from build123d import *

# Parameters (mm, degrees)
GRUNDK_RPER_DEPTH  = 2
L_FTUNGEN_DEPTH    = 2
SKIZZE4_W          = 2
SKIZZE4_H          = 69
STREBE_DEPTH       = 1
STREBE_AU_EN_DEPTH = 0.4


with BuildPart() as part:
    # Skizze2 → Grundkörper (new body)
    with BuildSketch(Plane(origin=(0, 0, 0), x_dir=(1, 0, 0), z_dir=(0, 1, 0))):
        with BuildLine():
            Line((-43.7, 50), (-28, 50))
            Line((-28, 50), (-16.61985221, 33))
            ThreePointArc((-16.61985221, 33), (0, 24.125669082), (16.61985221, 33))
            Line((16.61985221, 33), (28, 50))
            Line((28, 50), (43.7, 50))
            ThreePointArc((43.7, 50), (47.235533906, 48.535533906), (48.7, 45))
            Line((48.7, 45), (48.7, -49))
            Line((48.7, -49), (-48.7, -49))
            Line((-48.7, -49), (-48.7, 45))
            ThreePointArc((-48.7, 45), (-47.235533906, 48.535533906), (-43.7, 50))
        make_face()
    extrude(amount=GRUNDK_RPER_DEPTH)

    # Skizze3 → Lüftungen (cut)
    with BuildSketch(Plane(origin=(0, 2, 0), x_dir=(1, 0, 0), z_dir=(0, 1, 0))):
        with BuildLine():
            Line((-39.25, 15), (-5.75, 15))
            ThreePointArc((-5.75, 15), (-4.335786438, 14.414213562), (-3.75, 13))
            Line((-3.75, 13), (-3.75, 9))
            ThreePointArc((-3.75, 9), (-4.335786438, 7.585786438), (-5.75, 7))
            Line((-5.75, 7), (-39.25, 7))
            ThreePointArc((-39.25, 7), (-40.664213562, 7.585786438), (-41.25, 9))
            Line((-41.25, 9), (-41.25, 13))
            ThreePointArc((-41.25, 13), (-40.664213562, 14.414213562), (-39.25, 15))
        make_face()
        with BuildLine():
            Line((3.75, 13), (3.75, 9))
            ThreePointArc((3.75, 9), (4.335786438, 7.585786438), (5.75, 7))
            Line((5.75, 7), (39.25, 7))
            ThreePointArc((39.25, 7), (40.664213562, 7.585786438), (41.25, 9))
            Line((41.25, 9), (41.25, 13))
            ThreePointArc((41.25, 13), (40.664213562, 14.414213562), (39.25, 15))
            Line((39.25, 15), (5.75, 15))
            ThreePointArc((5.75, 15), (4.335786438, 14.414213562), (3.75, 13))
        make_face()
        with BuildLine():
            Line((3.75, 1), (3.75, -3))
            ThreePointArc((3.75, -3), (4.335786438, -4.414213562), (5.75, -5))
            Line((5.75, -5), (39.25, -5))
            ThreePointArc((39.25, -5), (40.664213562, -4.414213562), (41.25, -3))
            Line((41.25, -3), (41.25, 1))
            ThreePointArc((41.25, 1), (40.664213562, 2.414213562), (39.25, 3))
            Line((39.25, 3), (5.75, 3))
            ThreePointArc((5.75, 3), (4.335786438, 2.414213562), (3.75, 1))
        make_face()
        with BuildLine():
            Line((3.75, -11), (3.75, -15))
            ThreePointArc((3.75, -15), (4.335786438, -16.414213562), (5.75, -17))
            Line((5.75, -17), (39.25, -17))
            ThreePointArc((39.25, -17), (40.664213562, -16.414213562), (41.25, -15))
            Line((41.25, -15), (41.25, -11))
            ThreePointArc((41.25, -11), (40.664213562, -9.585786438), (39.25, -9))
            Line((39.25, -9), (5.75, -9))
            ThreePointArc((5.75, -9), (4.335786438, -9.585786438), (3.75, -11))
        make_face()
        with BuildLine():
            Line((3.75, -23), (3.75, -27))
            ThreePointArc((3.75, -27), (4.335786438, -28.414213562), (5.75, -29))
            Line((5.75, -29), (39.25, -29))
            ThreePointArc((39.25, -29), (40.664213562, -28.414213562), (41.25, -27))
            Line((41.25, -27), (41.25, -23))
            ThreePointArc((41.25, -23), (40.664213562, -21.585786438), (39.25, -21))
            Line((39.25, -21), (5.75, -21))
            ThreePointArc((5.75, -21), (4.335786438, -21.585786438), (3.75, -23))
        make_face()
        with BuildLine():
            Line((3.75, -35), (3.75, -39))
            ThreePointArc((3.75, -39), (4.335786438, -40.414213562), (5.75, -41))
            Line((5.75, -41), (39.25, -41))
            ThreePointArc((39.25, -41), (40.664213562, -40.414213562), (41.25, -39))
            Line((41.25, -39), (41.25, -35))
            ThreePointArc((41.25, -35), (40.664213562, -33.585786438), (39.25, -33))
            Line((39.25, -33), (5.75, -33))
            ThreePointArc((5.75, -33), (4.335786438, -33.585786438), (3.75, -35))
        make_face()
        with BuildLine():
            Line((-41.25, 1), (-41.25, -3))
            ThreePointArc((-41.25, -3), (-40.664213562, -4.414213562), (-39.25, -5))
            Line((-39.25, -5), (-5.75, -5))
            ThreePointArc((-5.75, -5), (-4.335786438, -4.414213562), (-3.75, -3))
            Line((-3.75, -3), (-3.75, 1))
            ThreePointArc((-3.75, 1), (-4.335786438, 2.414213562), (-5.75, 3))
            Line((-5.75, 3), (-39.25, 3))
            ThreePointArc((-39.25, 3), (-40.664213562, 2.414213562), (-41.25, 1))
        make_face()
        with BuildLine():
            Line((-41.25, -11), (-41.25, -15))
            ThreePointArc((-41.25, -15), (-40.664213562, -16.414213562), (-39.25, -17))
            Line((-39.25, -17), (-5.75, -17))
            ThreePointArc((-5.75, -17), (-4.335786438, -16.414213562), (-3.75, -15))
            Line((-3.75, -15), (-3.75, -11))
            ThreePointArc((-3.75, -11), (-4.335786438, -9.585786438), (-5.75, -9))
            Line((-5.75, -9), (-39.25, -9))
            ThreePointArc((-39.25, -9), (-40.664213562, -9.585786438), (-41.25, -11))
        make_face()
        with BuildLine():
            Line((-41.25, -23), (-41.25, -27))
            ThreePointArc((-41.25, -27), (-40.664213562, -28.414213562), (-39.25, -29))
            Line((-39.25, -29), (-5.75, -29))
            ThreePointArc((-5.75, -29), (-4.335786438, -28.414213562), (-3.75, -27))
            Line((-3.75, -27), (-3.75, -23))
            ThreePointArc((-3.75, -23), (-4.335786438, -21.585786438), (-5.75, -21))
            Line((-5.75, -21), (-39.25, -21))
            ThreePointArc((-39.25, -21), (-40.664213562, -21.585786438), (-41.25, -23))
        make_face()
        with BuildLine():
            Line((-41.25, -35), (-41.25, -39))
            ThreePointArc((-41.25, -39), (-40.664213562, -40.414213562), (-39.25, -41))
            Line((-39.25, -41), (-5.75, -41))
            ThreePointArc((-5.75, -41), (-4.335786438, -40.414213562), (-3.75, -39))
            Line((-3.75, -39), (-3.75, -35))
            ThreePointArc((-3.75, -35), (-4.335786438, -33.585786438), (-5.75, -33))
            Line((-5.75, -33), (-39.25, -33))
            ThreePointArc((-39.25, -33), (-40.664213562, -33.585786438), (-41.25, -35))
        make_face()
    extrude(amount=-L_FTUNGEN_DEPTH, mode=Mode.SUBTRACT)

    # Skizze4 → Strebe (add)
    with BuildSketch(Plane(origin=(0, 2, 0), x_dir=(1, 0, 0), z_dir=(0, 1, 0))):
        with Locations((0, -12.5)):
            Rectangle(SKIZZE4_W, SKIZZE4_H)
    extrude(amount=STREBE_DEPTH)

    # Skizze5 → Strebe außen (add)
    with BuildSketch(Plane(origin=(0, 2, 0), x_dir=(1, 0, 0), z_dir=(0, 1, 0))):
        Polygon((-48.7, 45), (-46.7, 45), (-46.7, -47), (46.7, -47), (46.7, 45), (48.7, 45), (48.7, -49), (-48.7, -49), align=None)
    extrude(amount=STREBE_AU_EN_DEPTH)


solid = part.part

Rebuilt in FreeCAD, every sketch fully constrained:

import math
import FreeCAD as App
import Part
import Sketcher
from FreeCAD import Vector
Q = App.Units.Quantity


def add_polygon(sketch, points):
    """Adds a closed chain of lines whose ends are joined by coincident constraints."""
    first, n = sketch.GeometryCount, len(points)
    for a, b in zip(points, points[1:] + points[:1]):
        sketch.addGeometry(Part.LineSegment(App.Vector(*a, 0), App.Vector(*b, 0)), False)
    for i in range(n):
        sketch.addConstraint(Sketcher.Constraint("Coincident", first + i, 2, first + (i + 1) % n, 1))

doc = App.newDocument("Part")
params = doc.addObject("Spreadsheet::Sheet", "Params")
for row, (alias, value) in enumerate([
    ("sketch1_radius", "5 mm"),
    ("sketch1_radius2", "20 mm"),
    ("sketch1_height", "94 mm"),
    ("sketch1_width", "15.7 mm"),
    ("sketch1_width2", "97.4 mm"),
    ("pad1_length", "2 mm"),
    ("sketch2_radius", "2 mm"),
    ("sketch2_height", "4 mm"),
    ("sketch2_width", "33.5 mm"),
    ("pocket1_length", "2 mm"),
    ("sketch3_width", "2 mm"),
    ("sketch3_height", "69 mm"),
    ("pad2_length", "1 mm"),
    ("sketch4_width", "2 mm"),
    ("sketch4_height", "94 mm"),
    ("sketch4_height2", "92 mm"),
    ("sketch4_width2", "97.4 mm"),
    ("pad3_length", "0.4 mm"),
], start=1):
    params.set(f"A{row}", alias)
    params.set(f"B{row}", "=" + value)
    params.setAlias(f"B{row}", alias)

body = doc.addObject("PartDesign::Body", "Body")

sketch1 = body.newObject("Sketcher::SketchObject", "Sketch")
sketch1.AttachmentSupport = (doc.getObject("XZ_Plane"), [""])
sketch1.MapMode = "FlatFace"
sketch1.addGeometry([
    Part.LineSegment(Vector(-28, -50, 0), Vector(-44, -50, 0)),
    Part.ArcOfCircle(Part.Circle(Vector(-44, -45, 0), Vector(0, 0, 1), 5), math.radians(180), math.radians(270)),
    Part.LineSegment(Vector(-49, -45, 0), Vector(-49, 49, 0)),
    Part.LineSegment(Vector(-49, 49, 0), Vector(49, 49, 0)),
    Part.LineSegment(Vector(49, 49, 0), Vector(49, -45, 0)),
    Part.ArcOfCircle(Part.Circle(Vector(44, -45, 0), Vector(0, 0, 1), 5), math.radians(-90), math.radians(0)),
    Part.LineSegment(Vector(44, -50, 0), Vector(28, -50, 0)),
    Part.LineSegment(Vector(28, -50, 0), Vector(17, -33, 0)),
    Part.ArcOfCircle(Part.Circle(Vector(0, -44, 0), Vector(0, 0, 1), 20), math.radians(34), math.radians(146)),
    Part.LineSegment(Vector(-17, -33, 0), Vector(-28, -50, 0)),
], False)
sketch1.addConstraint([
    Sketcher.Constraint("Tangent", 0, 2, 1, 2),
    Sketcher.Constraint("Tangent", 1, 1, 2, 1),
    Sketcher.Constraint("Coincident", 2, 2, 3, 1),
    Sketcher.Constraint("Coincident", 3, 2, 4, 1),
    Sketcher.Constraint("Tangent", 4, 2, 5, 2),
    Sketcher.Constraint("Tangent", 5, 1, 6, 1),
    Sketcher.Constraint("Coincident", 6, 2, 7, 1),
    Sketcher.Constraint("Tangent", 7, 2, 8, 1),
    Sketcher.Constraint("Tangent", 8, 2, 9, 1),
    Sketcher.Constraint("Coincident", 9, 2, 0, 1),
    Sketcher.Constraint("Horizontal", 0),
    Sketcher.Constraint("Vertical", 2),
    Sketcher.Constraint("Horizontal", 3),
    Sketcher.Constraint("Vertical", 4),
    Sketcher.Constraint("Horizontal", 6),
    Sketcher.Constraint("Equal", 1, 5),
    Sketcher.Constraint("Symmetric", 1, 3, 5, 3, -2),
    Sketcher.Constraint("Symmetric", 7, 2, 8, 2, -2),
    Sketcher.Constraint("Radius", 1, Q("5 mm")),
    Sketcher.Constraint("Radius", 8, Q("20 mm")),
    Sketcher.Constraint("DistanceY", 2, 1, 2, 2, Q("94 mm")),
    Sketcher.Constraint("DistanceX", 0, 2, 0, 1, Q("15.7 mm")),
    Sketcher.Constraint("DistanceX", 3, 1, 3, 2, Q("97.4 mm")),
    Sketcher.Constraint("DistanceY", 1, 3, -1, 1, Q("45 mm")),
    Sketcher.Constraint("DistanceY", 7, 2, -1, 1, Q("33 mm")),
])
sketch1.setExpression("Constraints[18]", "Params.sketch1_radius")
sketch1.setExpression("Constraints[19]", "Params.sketch1_radius2")
sketch1.setExpression("Constraints[20]", "Params.sketch1_height")
sketch1.setExpression("Constraints[21]", "Params.sketch1_width")
sketch1.setExpression("Constraints[22]", "Params.sketch1_width2")
pad1 = body.newObject("PartDesign::Pad", "Pad")
pad1.Profile = sketch1
pad1.setExpression("Length", "Params.pad1_length")
pad1.Reversed = True

sketch2 = body.newObject("Sketcher::SketchObject", "Sketch001")
sketch2.AttachmentSupport = (doc.getObject("XZ_Plane"), [""])
sketch2.MapMode = "FlatFace"
sketch2.AttachmentOffset = App.Placement(Vector(0, 0, -2), App.Rotation())
sketch2.addGeometry([
    Part.LineSegment(Vector(-5.8, -15, 0), Vector(-39.2, -15, 0)),
    Part.ArcOfCircle(Part.Circle(Vector(-39.2, -13, 0), Vector(0, 0, 1), 2), math.radians(-180), math.radians(-90)),
    Part.LineSegment(Vector(-41.2, -13, 0), Vector(-41.2, -9, 0)),
    Part.ArcOfCircle(Part.Circle(Vector(-39.2, -9, 0), Vector(0, 0, 1), 2), math.radians(90), math.radians(180)),
    Part.LineSegment(Vector(-39.2, -7, 0), Vector(-5.8, -7, 0)),
    Part.ArcOfCircle(Part.Circle(Vector(-5.8, -9, 0), Vector(0, 0, 1), 2), math.radians(0), math.radians(90)),
    Part.LineSegment(Vector(-3.8, -9, 0), Vector(-3.8, -13, 0)),
    Part.ArcOfCircle(Part.Circle(Vector(-5.8, -13, 0), Vector(0, 0, 1), 2), math.radians(-90), math.radians(0)),
    Part.LineSegment(Vector(3.8, -13, 0), Vector(3.8, -9, 0)),
    Part.ArcOfCircle(Part.Circle(Vector(5.8, -9, 0), Vector(0, 0, 1), 2), math.radians(90), math.radians(180)),
    Part.LineSegment(Vector(5.8, -7, 0), Vector(39.2, -7, 0)),
    Part.ArcOfCircle(Part.Circle(Vector(39.2, -9, 0), Vector(0, 0, 1), 2), math.radians(0), math.radians(90)),
    Part.LineSegment(Vector(41.2, -9, 0), Vector(41.2, -13, 0)),
    Part.ArcOfCircle(Part.Circle(Vector(39.2, -13, 0), Vector(0, 0, 1), 2), math.radians(-90), math.radians(0)),
    Part.LineSegment(Vector(39.2, -15, 0), Vector(5.8, -15, 0)),
    Part.ArcOfCircle(Part.Circle(Vector(5.8, -13, 0), Vector(0, 0, 1), 2), math.radians(-180), math.radians(-90)),
    Part.LineSegment(Vector(3.8, -1, 0), Vector(3.8, 3, 0)),
    Part.ArcOfCircle(Part.Circle(Vector(5.8, 3, 0), Vector(0, 0, 1), 2), math.radians(90), math.radians(180)),
    Part.LineSegment(Vector(5.8, 5, 0), Vector(39.2, 5, 0)),
    Part.ArcOfCircle(Part.Circle(Vector(39.2, 3, 0), Vector(0, 0, 1), 2), math.radians(0), math.radians(90)),
    Part.LineSegment(Vector(41.2, 3, 0), Vector(41.2, -1, 0)),
    Part.ArcOfCircle(Part.Circle(Vector(39.2, -1, 0), Vector(0, 0, 1), 2), math.radians(-90), math.radians(0)),
    Part.LineSegment(Vector(39.2, -3, 0), Vector(5.8, -3, 0)),
    Part.ArcOfCircle(Part.Circle(Vector(5.8, -1, 0), Vector(0, 0, 1), 2), math.radians(-180), math.radians(-90)),
    Part.LineSegment(Vector(3.8, 11, 0), Vector(3.8, 15, 0)),
    Part.ArcOfCircle(Part.Circle(Vector(5.8, 15, 0), Vector(0, 0, 1), 2), math.radians(90), math.radians(180)),
    Part.LineSegment(Vector(5.8, 17, 0), Vector(39.2, 17, 0)),
    Part.ArcOfCircle(Part.Circle(Vector(39.2, 15, 0), Vector(0, 0, 1), 2), math.radians(0), math.radians(90)),
    Part.LineSegment(Vector(41.2, 15, 0), Vector(41.2, 11, 0)),
    Part.ArcOfCircle(Part.Circle(Vector(39.2, 11, 0), Vector(0, 0, 1), 2), math.radians(-90), math.radians(0)),
    Part.LineSegment(Vector(39.2, 9, 0), Vector(5.8, 9, 0)),
    Part.ArcOfCircle(Part.Circle(Vector(5.8, 11, 0), Vector(0, 0, 1), 2), math.radians(-180), math.radians(-90)),
    Part.LineSegment(Vector(3.8, 23, 0), Vector(3.8, 27, 0)),
    Part.ArcOfCircle(Part.Circle(Vector(5.8, 27, 0), Vector(0, 0, 1), 2), math.radians(90), math.radians(180)),
    Part.LineSegment(Vector(5.8, 29, 0), Vector(39.2, 29, 0)),
    Part.ArcOfCircle(Part.Circle(Vector(39.2, 27, 0), Vector(0, 0, 1), 2), math.radians(0), math.radians(90)),
    Part.LineSegment(Vector(41.2, 27, 0), Vector(41.2, 23, 0)),
    Part.ArcOfCircle(Part.Circle(Vector(39.2, 23, 0), Vector(0, 0, 1), 2), math.radians(-90), math.radians(0)),
    Part.LineSegment(Vector(39.2, 21, 0), Vector(5.8, 21, 0)),
    Part.ArcOfCircle(Part.Circle(Vector(5.8, 23, 0), Vector(0, 0, 1), 2), math.radians(-180), math.radians(-90)),
    Part.LineSegment(Vector(3.8, 35, 0), Vector(3.8, 39, 0)),
    Part.ArcOfCircle(Part.Circle(Vector(5.8, 39, 0), Vector(0, 0, 1), 2), math.radians(90), math.radians(180)),
    Part.LineSegment(Vector(5.8, 41, 0), Vector(39.2, 41, 0)),
    Part.ArcOfCircle(Part.Circle(Vector(39.2, 39, 0), Vector(0, 0, 1), 2), math.radians(0), math.radians(90)),
    Part.LineSegment(Vector(41.2, 39, 0), Vector(41.2, 35, 0)),
    Part.ArcOfCircle(Part.Circle(Vector(39.2, 35, 0), Vector(0, 0, 1), 2), math.radians(-90), math.radians(0)),
    Part.LineSegment(Vector(39.2, 33, 0), Vector(5.8, 33, 0)),
    Part.ArcOfCircle(Part.Circle(Vector(5.8, 35, 0), Vector(0, 0, 1), 2), math.radians(-180), math.radians(-90)),
    Part.LineSegment(Vector(-41.2, -1, 0), Vector(-41.2, 3, 0)),
    Part.ArcOfCircle(Part.Circle(Vector(-39.2, 3, 0), Vector(0, 0, 1), 2), math.radians(90), math.radians(180)),
    Part.LineSegment(Vector(-39.2, 5, 0), Vector(-5.8, 5, 0)),
    Part.ArcOfCircle(Part.Circle(Vector(-5.8, 3, 0), Vector(0, 0, 1), 2), math.radians(0), math.radians(90)),
    Part.LineSegment(Vector(-3.8, 3, 0), Vector(-3.8, -1, 0)),
    Part.ArcOfCircle(Part.Circle(Vector(-5.8, -1, 0), Vector(0, 0, 1), 2), math.radians(-90), math.radians(0)),
    Part.LineSegment(Vector(-5.8, -3, 0), Vector(-39.2, -3, 0)),
    Part.ArcOfCircle(Part.Circle(Vector(-39.2, -1, 0), Vector(0, 0, 1), 2), math.radians(-180), math.radians(-90)),
    Part.LineSegment(Vector(-41.2, 11, 0), Vector(-41.2, 15, 0)),
    Part.ArcOfCircle(Part.Circle(Vector(-39.2, 15, 0), Vector(0, 0, 1), 2), math.radians(90), math.radians(180)),
    Part.LineSegment(Vector(-39.2, 17, 0), Vector(-5.8, 17, 0)),
    Part.ArcOfCircle(Part.Circle(Vector(-5.8, 15, 0), Vector(0, 0, 1), 2), math.radians(0), math.radians(90)),
    Part.LineSegment(Vector(-3.8, 15, 0), Vector(-3.8, 11, 0)),
    Part.ArcOfCircle(Part.Circle(Vector(-5.8, 11, 0), Vector(0, 0, 1), 2), math.radians(-90), math.radians(0)),
    Part.LineSegment(Vector(-5.8, 9, 0), Vector(-39.2, 9, 0)),
    Part.ArcOfCircle(Part.Circle(Vector(-39.2, 11, 0), Vector(0, 0, 1), 2), math.radians(-180), math.radians(-90)),
    Part.LineSegment(Vector(-41.2, 23, 0), Vector(-41.2, 27, 0)),
    Part.ArcOfCircle(Part.Circle(Vector(-39.2, 27, 0), Vector(0, 0, 1), 2), math.radians(90), math.radians(180)),
    Part.LineSegment(Vector(-39.2, 29, 0), Vector(-5.8, 29, 0)),
    Part.ArcOfCircle(Part.Circle(Vector(-5.8, 27, 0), Vector(0, 0, 1), 2), math.radians(0), math.radians(90)),
    Part.LineSegment(Vector(-3.8, 27, 0), Vector(-3.8, 23, 0)),
    Part.ArcOfCircle(Part.Circle(Vector(-5.8, 23, 0), Vector(0, 0, 1), 2), math.radians(-90), math.radians(0)),
    Part.LineSegment(Vector(-5.8, 21, 0), Vector(-39.2, 21, 0)),
    Part.ArcOfCircle(Part.Circle(Vector(-39.2, 23, 0), Vector(0, 0, 1), 2), math.radians(-180), math.radians(-90)),
    Part.LineSegment(Vector(-41.2, 35, 0), Vector(-41.2, 39, 0)),
    Part.ArcOfCircle(Part.Circle(Vector(-39.2, 39, 0), Vector(0, 0, 1), 2), math.radians(90), math.radians(180)),
    Part.LineSegment(Vector(-39.2, 41, 0), Vector(-5.8, 41, 0)),
    Part.ArcOfCircle(Part.Circle(Vector(-5.8, 39, 0), Vector(0, 0, 1), 2), math.radians(0), math.radians(90)),
    Part.LineSegment(Vector(-3.8, 39, 0), Vector(-3.8, 35, 0)),
    Part.ArcOfCircle(Part.Circle(Vector(-5.8, 35, 0), Vector(0, 0, 1), 2), math.radians(-90), math.radians(0)),
    Part.LineSegment(Vector(-5.8, 33, 0), Vector(-39.2, 33, 0)),
    Part.ArcOfCircle(Part.Circle(Vector(-39.2, 35, 0), Vector(0, 0, 1), 2), math.radians(-180), math.radians(-90)),
], False)
sketch2.addConstraint([
    Sketcher.Constraint("Tangent", 0, 2, 1, 2),
    Sketcher.Constraint("Tangent", 1, 1, 2, 1),
    Sketcher.Constraint("Tangent", 2, 2, 3, 2),
    Sketcher.Constraint("Tangent", 3, 1, 4, 1),
    Sketcher.Constraint("Tangent", 4, 2, 5, 2),
    Sketcher.Constraint("Tangent", 5, 1, 6, 1),
    Sketcher.Constraint("Tangent", 6, 2, 7, 2),
    Sketcher.Constraint("Tangent", 7, 1, 0, 1),
    Sketcher.Constraint("Tangent", 8, 2, 9, 2),
    Sketcher.Constraint("Tangent", 9, 1, 10, 1),
    Sketcher.Constraint("Tangent", 10, 2, 11, 2),
    Sketcher.Constraint("Tangent", 11, 1, 12, 1),
    Sketcher.Constraint("Tangent", 12, 2, 13, 2),
    Sketcher.Constraint("Tangent", 13, 1, 14, 1),
    Sketcher.Constraint("Tangent", 14, 2, 15, 2),
    Sketcher.Constraint("Tangent", 15, 1, 8, 1),
    Sketcher.Constraint("Tangent", 16, 2, 17, 2),
    Sketcher.Constraint("Tangent", 17, 1, 18, 1),
    Sketcher.Constraint("Tangent", 18, 2, 19, 2),
    Sketcher.Constraint("Tangent", 19, 1, 20, 1),
    Sketcher.Constraint("Tangent", 20, 2, 21, 2),
    Sketcher.Constraint("Tangent", 21, 1, 22, 1),
    Sketcher.Constraint("Tangent", 22, 2, 23, 2),
    Sketcher.Constraint("Tangent", 23, 1, 16, 1),
    Sketcher.Constraint("Tangent", 24, 2, 25, 2),
    Sketcher.Constraint("Tangent", 25, 1, 26, 1),
    Sketcher.Constraint("Tangent", 26, 2, 27, 2),
    Sketcher.Constraint("Tangent", 27, 1, 28, 1),
    Sketcher.Constraint("Tangent", 28, 2, 29, 2),
    Sketcher.Constraint("Tangent", 29, 1, 30, 1),
    Sketcher.Constraint("Tangent", 30, 2, 31, 2),
    Sketcher.Constraint("Tangent", 31, 1, 24, 1),
    Sketcher.Constraint("Tangent", 32, 2, 33, 2),
    Sketcher.Constraint("Tangent", 33, 1, 34, 1),
    Sketcher.Constraint("Tangent", 34, 2, 35, 2),
    Sketcher.Constraint("Tangent", 35, 1, 36, 1),
    Sketcher.Constraint("Tangent", 36, 2, 37, 2),
    Sketcher.Constraint("Tangent", 37, 1, 38, 1),
    Sketcher.Constraint("Tangent", 38, 2, 39, 2),
    Sketcher.Constraint("Tangent", 39, 1, 32, 1),
    Sketcher.Constraint("Tangent", 40, 2, 41, 2),
    Sketcher.Constraint("Tangent", 41, 1, 42, 1),
    Sketcher.Constraint("Tangent", 42, 2, 43, 2),
    Sketcher.Constraint("Tangent", 43, 1, 44, 1),
    Sketcher.Constraint("Tangent", 44, 2, 45, 2),
    Sketcher.Constraint("Tangent", 45, 1, 46, 1),
    Sketcher.Constraint("Tangent", 46, 2, 47, 2),
    Sketcher.Constraint("Tangent", 47, 1, 40, 1),
    Sketcher.Constraint("Tangent", 48, 2, 49, 2),
    Sketcher.Constraint("Tangent", 49, 1, 50, 1),
    Sketcher.Constraint("Tangent", 50, 2, 51, 2),
    Sketcher.Constraint("Tangent", 51, 1, 52, 1),
    Sketcher.Constraint("Tangent", 52, 2, 53, 2),
    Sketcher.Constraint("Tangent", 53, 1, 54, 1),
    Sketcher.Constraint("Tangent", 54, 2, 55, 2),
    Sketcher.Constraint("Tangent", 55, 1, 48, 1),
    Sketcher.Constraint("Tangent", 56, 2, 57, 2),
    Sketcher.Constraint("Tangent", 57, 1, 58, 1),
    Sketcher.Constraint("Tangent", 58, 2, 59, 2),
    Sketcher.Constraint("Tangent", 59, 1, 60, 1),
    Sketcher.Constraint("Tangent", 60, 2, 61, 2),
    Sketcher.Constraint("Tangent", 61, 1, 62, 1),
    Sketcher.Constraint("Tangent", 62, 2, 63, 2),
    Sketcher.Constraint("Tangent", 63, 1, 56, 1),
    Sketcher.Constraint("Tangent", 64, 2, 65, 2),
    Sketcher.Constraint("Tangent", 65, 1, 66, 1),
    Sketcher.Constraint("Tangent", 66, 2, 67, 2),
    Sketcher.Constraint("Tangent", 67, 1, 68, 1),
    Sketcher.Constraint("Tangent", 68, 2, 69, 2),
    Sketcher.Constraint("Tangent", 69, 1, 70, 1),
    Sketcher.Constraint("Tangent", 70, 2, 71, 2),
    Sketcher.Constraint("Tangent", 71, 1, 64, 1),
    Sketcher.Constraint("Tangent", 72, 2, 73, 2),
    Sketcher.Constraint("Tangent", 73, 1, 74, 1),
    Sketcher.Constraint("Tangent", 74, 2, 75, 2),
    Sketcher.Constraint("Tangent", 75, 1, 76, 1),
    Sketcher.Constraint("Tangent", 76, 2, 77, 2),
    Sketcher.Constraint("Tangent", 77, 1, 78, 1),
    Sketcher.Constraint("Tangent", 78, 2, 79, 2),
    Sketcher.Constraint("Tangent", 79, 1, 72, 1),
    Sketcher.Constraint("Horizontal", 0),
    Sketcher.Constraint("Vertical", 2),
    Sketcher.Constraint("Horizontal", 4),
    Sketcher.Constraint("Vertical", 6),
    Sketcher.Constraint("Vertical", 8),
    Sketcher.Constraint("Horizontal", 10),
    Sketcher.Constraint("Vertical", 12),
    Sketcher.Constraint("Horizontal", 14),
    Sketcher.Constraint("Vertical", 16),
    Sketcher.Constraint("Horizontal", 18),
    Sketcher.Constraint("Vertical", 20),
    Sketcher.Constraint("Horizontal", 22),
    Sketcher.Constraint("Vertical", 24),
    Sketcher.Constraint("Horizontal", 26),
    Sketcher.Constraint("Vertical", 28),
    Sketcher.Constraint("Horizontal", 30),
    Sketcher.Constraint("Vertical", 32),
    Sketcher.Constraint("Horizontal", 34),
    Sketcher.Constraint("Vertical", 36),
    Sketcher.Constraint("Horizontal", 38),
    Sketcher.Constraint("Vertical", 40),
    Sketcher.Constraint("Horizontal", 42),
    Sketcher.Constraint("Vertical", 44),
    Sketcher.Constraint("Horizontal", 46),
    Sketcher.Constraint("Vertical", 48),
    Sketcher.Constraint("Horizontal", 50),
    Sketcher.Constraint("Vertical", 52),
    Sketcher.Constraint("Horizontal", 54),
    Sketcher.Constraint("Vertical", 56),
    Sketcher.Constraint("Horizontal", 58),
    Sketcher.Constraint("Vertical", 60),
    Sketcher.Constraint("Horizontal", 62),
    Sketcher.Constraint("Vertical", 64),
    Sketcher.Constraint("Horizontal", 66),
    Sketcher.Constraint("Vertical", 68),
    Sketcher.Constraint("Horizontal", 70),
    Sketcher.Constraint("Vertical", 72),
    Sketcher.Constraint("Horizontal", 74),
    Sketcher.Constraint("Vertical", 76),
    Sketcher.Constraint("Horizontal", 78),
    Sketcher.Constraint("Equal", 1, 3),
    Sketcher.Constraint("Equal", 3, 5),
    Sketcher.Constraint("Equal", 5, 7),
    Sketcher.Constraint("Equal", 7, 9),
    Sketcher.Constraint("Equal", 9, 11),
    Sketcher.Constraint("Equal", 11, 13),
    Sketcher.Constraint("Equal", 13, 15),
    Sketcher.Constraint("Equal", 15, 17),
    Sketcher.Constraint("Equal", 17, 19),
    Sketcher.Constraint("Equal", 19, 21),
    Sketcher.Constraint("Equal", 21, 23),
    Sketcher.Constraint("Equal", 23, 25),
    Sketcher.Constraint("Equal", 25, 27),
    Sketcher.Constraint("Equal", 27, 29),
    Sketcher.Constraint("Equal", 29, 31),
    Sketcher.Constraint("Equal", 31, 33),
    Sketcher.Constraint("Equal", 33, 35),
    Sketcher.Constraint("Equal", 35, 37),
    Sketcher.Constraint("Equal", 37, 39),
    Sketcher.Constraint("Equal", 39, 41),
    Sketcher.Constraint("Equal", 41, 43),
    Sketcher.Constraint("Equal", 43, 45),
    Sketcher.Constraint("Equal", 45, 47),
    Sketcher.Constraint("Equal", 47, 49),
    Sketcher.Constraint("Equal", 49, 51),
    Sketcher.Constraint("Equal", 51, 53),
    Sketcher.Constraint("Equal", 53, 55),
    Sketcher.Constraint("Equal", 55, 57),
    Sketcher.Constraint("Equal", 57, 59),
    Sketcher.Constraint("Equal", 59, 61),
    Sketcher.Constraint("Equal", 61, 63),
    Sketcher.Constraint("Equal", 63, 65),
    Sketcher.Constraint("Equal", 65, 67),
    Sketcher.Constraint("Equal", 67, 69),
    Sketcher.Constraint("Equal", 69, 71),
    Sketcher.Constraint("Equal", 71, 73),
    Sketcher.Constraint("Equal", 73, 75),
    Sketcher.Constraint("Equal", 75, 77),
    Sketcher.Constraint("Equal", 77, 79),
    Sketcher.Constraint("Symmetric", 5, 3, 9, 3, -2),
    Sketcher.Constraint("Symmetric", 1, 3, 13, 3, -2),
    Sketcher.Constraint("Symmetric", 19, 3, 49, 3, -2),
    Sketcher.Constraint("Symmetric", 23, 3, 53, 3, -2),
    Sketcher.Constraint("Symmetric", 27, 3, 57, 3, -2),
    Sketcher.Constraint("Symmetric", 31, 3, 61, 3, -2),
    Sketcher.Constraint("Symmetric", 35, 3, 65, 3, -2),
    Sketcher.Constraint("Symmetric", 39, 3, 69, 3, -2),
    Sketcher.Constraint("Symmetric", 43, 3, 73, 3, -2),
    Sketcher.Constraint("Symmetric", 47, 3, 77, 3, -2),
    Sketcher.Constraint("Vertical", 15, 3, 17, 3),
    Sketcher.Constraint("Vertical", 13, 3, 19, 3),
    Sketcher.Constraint("Vertical", 23, 3, 25, 3),
    Sketcher.Constraint("Vertical", 21, 3, 27, 3),
    Sketcher.Constraint("Vertical", 31, 3, 33, 3),
    Sketcher.Constraint("Vertical", 29, 3, 35, 3),
    Sketcher.Constraint("Vertical", 39, 3, 41, 3),
    Sketcher.Constraint("Vertical", 37, 3, 43, 3),
    Sketcher.Constraint("Equal", 12, 16),
    Sketcher.Constraint("Equal", 20, 24),
    Sketcher.Constraint("Equal", 28, 32),
    Sketcher.Constraint("Equal", 36, 40),
    Sketcher.Constraint("Radius", 1, Q("2 mm")),
    Sketcher.Constraint("DistanceY", 2, 1, 2, 2, Q("4 mm")),
    Sketcher.Constraint("DistanceX", 0, 2, 0, 1, Q("33.5 mm")),
    Sketcher.Constraint("DistanceY", 1, 3, -1, 1, Q("13 mm")),
    Sketcher.Constraint("DistanceY", -1, 1, 17, 3, Q("3 mm")),
    Sketcher.Constraint("DistanceY", -1, 1, 25, 3, Q("15 mm")),
    Sketcher.Constraint("DistanceY", -1, 1, 33, 3, Q("27 mm")),
    Sketcher.Constraint("DistanceY", -1, 1, 41, 3, Q("39 mm")),
    Sketcher.Constraint("DistanceX", 1, 3, -1, 1, Q("39.25 mm")),
])
sketch2.setExpression("Constraints[181]", "Params.sketch2_radius")
sketch2.setExpression("Constraints[182]", "Params.sketch2_height")
sketch2.setExpression("Constraints[183]", "Params.sketch2_width")
pocket1 = body.newObject("PartDesign::Pocket", "Pocket")
pocket1.Profile = sketch2
pocket1.setExpression("Length", "Params.pocket1_length")
pocket1.Reversed = True

sketch3 = body.newObject("Sketcher::SketchObject", "Sketch002")
sketch3.AttachmentSupport = (doc.getObject("XZ_Plane"), [""])
sketch3.MapMode = "FlatFace"
sketch3.AttachmentOffset = App.Placement(Vector(0, 0, -2), App.Rotation())
add_polygon(sketch3, [(-1, -22), (-1, 47), (1, 47), (1, -22)])
sketch3.addConstraint([
    Sketcher.Constraint("Vertical", 0),
    Sketcher.Constraint("Horizontal", 1),
    Sketcher.Constraint("Vertical", 2),
    Sketcher.Constraint("Horizontal", 3),
    Sketcher.Constraint("DistanceX", 1, 1, 1, 2, Q("2 mm")),
    Sketcher.Constraint("DistanceY", 0, 1, 0, 2, Q("69 mm")),
    Sketcher.Constraint("DistanceX", 0, 2, -1, 1, Q("1 mm")),
    Sketcher.Constraint("DistanceY", -1, 1, 0, 2, Q("47 mm")),
])
sketch3.setExpression("Constraints[8]", "Params.sketch3_width")
sketch3.setExpression("Constraints[9]", "Params.sketch3_height")
pad2 = body.newObject("PartDesign::Pad", "Pad001")
pad2.Profile = sketch3
pad2.setExpression("Length", "Params.pad2_length")
pad2.Reversed = True

sketch4 = body.newObject("Sketcher::SketchObject", "Sketch003")
sketch4.AttachmentSupport = (doc.getObject("XZ_Plane"), [""])
sketch4.MapMode = "FlatFace"
sketch4.AttachmentOffset = App.Placement(Vector(0, 0, -2), App.Rotation())
add_polygon(sketch4, [(-46.7, -45), (-48.7, -45), (-48.7, 49), (48.7, 49), (48.7, -45), (46.7, -45), (46.7, 47), (-46.7, 47)])
sketch4.addConstraint([
    Sketcher.Constraint("Horizontal", 0),
    Sketcher.Constraint("Vertical", 1),
    Sketcher.Constraint("Horizontal", 2),
    Sketcher.Constraint("Vertical", 3),
    Sketcher.Constraint("Horizontal", 4),
    Sketcher.Constraint("Vertical", 5),
    Sketcher.Constraint("Horizontal", 6),
    Sketcher.Constraint("Vertical", 7),
    Sketcher.Constraint("Symmetric", 0, 2, 3, 2, -2),
    Sketcher.Constraint("Equal", 0, 4),
    Sketcher.Constraint("DistanceX", 0, 2, 0, 1, Q("2 mm")),
    Sketcher.Constraint("DistanceY", 1, 1, 1, 2, Q("94 mm")),
    Sketcher.Constraint("DistanceY", 5, 1, 5, 2, Q("92 mm")),
    Sketcher.Constraint("DistanceX", 2, 1, 2, 2, Q("97.4 mm")),
    Sketcher.Constraint("DistanceY", 0, 2, -1, 1, Q("45 mm")),
])
sketch4.setExpression("Constraints[18]", "Params.sketch4_width")
sketch4.setExpression("Constraints[19]", "Params.sketch4_height")
sketch4.setExpression("Constraints[20]", "Params.sketch4_height2")
sketch4.setExpression("Constraints[21]", "Params.sketch4_width2")
pad3 = body.newObject("PartDesign::Pad", "Pad002")
pad3.Profile = sketch4
pad3.setExpression("Length", "Params.pad3_length")
pad3.Reversed = True

doc.recompute()
